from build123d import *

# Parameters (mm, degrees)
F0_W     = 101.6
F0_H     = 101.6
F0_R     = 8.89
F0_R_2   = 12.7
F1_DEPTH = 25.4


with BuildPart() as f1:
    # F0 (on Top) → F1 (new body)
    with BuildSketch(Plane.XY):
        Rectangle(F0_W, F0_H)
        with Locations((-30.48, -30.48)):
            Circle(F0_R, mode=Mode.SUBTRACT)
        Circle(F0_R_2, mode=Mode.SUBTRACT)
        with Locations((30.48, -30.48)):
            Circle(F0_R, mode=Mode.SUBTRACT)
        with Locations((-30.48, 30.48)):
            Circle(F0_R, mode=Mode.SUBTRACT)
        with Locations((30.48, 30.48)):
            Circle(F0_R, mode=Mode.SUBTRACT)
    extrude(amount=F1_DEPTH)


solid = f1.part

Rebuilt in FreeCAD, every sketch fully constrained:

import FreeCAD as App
import Part
import Sketcher

V = App.Vector
Q = App.Units.Quantity


def add_polygon(sketch, points):
    """Adds a closed chain of lines whose ends are joined by coincident constraints."""
    first, n = sketch.GeometryCount, len(points)
    for a, b in zip(points, points[1:] + points[:1]):
        sketch.addGeometry(Part.LineSegment(App.Vector(*a, 0), App.Vector(*b, 0)), False)
    for i in range(n):
        sketch.addConstraint(Sketcher.Constraint("Coincident", first + i, 2, first + (i + 1) % n, 1))

doc = App.newDocument("Part")
body = doc.addObject("PartDesign::Body", "Body")

# Sketch on XY plane
sketch1 = body.newObject("Sketcher::SketchObject", "Sketch")
sketch1.AttachmentSupport = (doc.getObject("XY_Plane"), [""])
sketch1.MapMode = "FlatFace"
add_polygon(sketch1, [(-51, 51), (-51, -51), (51, -51), (51, 51)])  # lines 0-3
sketch1.addGeometry(Part.Circle(V(-30, -30, 0), V(0, 0, 1), 9), False)  # 4
sketch1.addGeometry(Part.Circle(V(30, -30, 0), V(0, 0, 1), 9), False)  # 5
sketch1.addGeometry(Part.Circle(V(-30, 30, 0), V(0, 0, 1), 9), False)  # 6
sketch1.addGeometry(Part.Circle(V(0, 0, 0), V(0, 0, 1), 13), False)  # 7
sketch1.addGeometry(Part.Circle(V(30, 30, 0), V(0, 0, 1), 9), False)  # 8
sketch1.addConstraint([
    Sketcher.Constraint("Vertical", 0),
    Sketcher.Constraint("Horizontal", 1),
    Sketcher.Constraint("Vertical", 2),
    Sketcher.Constraint("Horizontal", 3),
    Sketcher.Constraint("Coincident", 7, 3, -1, 1),
    Sketcher.Constraint("Equal", 4, 5),
    Sketcher.Constraint("Equal", 5, 6),
    Sketcher.Constraint("Equal", 6, 8),
    Sketcher.Constraint("Symmetric", 5, 3, 6, 3, -1, 1),
    Sketcher.Constraint("Symmetric", 4, 3, 8, 3, -1, 1),
    Sketcher.Constraint("Symmetric", 0, 2, 2, 2, -1, 1),
    Sketcher.Constraint("Symmetric", 4, 3, 5, 3, -2),
    Sketcher.Constraint("Equal", 3, 0),
    Sketcher.Constraint("Diameter", 7, Q("1 in")),
    Sketcher.Constraint("Diameter", 4, Q("0.7 in")),
    Sketcher.Constraint("DistanceX", 1, 1, 1, 2, Q("4 in")),
    Sketcher.Constraint("DistanceX", 4, 3, -1, 1, Q("1.2 in")),
    Sketcher.Constraint("DistanceY", 4, 3, -1, 1, Q("1.2 in")),
])
pad1 = body.newObject("PartDesign::Pad", "Pad")
pad1.Profile = sketch1
pad1.Length = Q("1 in")

doc.recompute()
